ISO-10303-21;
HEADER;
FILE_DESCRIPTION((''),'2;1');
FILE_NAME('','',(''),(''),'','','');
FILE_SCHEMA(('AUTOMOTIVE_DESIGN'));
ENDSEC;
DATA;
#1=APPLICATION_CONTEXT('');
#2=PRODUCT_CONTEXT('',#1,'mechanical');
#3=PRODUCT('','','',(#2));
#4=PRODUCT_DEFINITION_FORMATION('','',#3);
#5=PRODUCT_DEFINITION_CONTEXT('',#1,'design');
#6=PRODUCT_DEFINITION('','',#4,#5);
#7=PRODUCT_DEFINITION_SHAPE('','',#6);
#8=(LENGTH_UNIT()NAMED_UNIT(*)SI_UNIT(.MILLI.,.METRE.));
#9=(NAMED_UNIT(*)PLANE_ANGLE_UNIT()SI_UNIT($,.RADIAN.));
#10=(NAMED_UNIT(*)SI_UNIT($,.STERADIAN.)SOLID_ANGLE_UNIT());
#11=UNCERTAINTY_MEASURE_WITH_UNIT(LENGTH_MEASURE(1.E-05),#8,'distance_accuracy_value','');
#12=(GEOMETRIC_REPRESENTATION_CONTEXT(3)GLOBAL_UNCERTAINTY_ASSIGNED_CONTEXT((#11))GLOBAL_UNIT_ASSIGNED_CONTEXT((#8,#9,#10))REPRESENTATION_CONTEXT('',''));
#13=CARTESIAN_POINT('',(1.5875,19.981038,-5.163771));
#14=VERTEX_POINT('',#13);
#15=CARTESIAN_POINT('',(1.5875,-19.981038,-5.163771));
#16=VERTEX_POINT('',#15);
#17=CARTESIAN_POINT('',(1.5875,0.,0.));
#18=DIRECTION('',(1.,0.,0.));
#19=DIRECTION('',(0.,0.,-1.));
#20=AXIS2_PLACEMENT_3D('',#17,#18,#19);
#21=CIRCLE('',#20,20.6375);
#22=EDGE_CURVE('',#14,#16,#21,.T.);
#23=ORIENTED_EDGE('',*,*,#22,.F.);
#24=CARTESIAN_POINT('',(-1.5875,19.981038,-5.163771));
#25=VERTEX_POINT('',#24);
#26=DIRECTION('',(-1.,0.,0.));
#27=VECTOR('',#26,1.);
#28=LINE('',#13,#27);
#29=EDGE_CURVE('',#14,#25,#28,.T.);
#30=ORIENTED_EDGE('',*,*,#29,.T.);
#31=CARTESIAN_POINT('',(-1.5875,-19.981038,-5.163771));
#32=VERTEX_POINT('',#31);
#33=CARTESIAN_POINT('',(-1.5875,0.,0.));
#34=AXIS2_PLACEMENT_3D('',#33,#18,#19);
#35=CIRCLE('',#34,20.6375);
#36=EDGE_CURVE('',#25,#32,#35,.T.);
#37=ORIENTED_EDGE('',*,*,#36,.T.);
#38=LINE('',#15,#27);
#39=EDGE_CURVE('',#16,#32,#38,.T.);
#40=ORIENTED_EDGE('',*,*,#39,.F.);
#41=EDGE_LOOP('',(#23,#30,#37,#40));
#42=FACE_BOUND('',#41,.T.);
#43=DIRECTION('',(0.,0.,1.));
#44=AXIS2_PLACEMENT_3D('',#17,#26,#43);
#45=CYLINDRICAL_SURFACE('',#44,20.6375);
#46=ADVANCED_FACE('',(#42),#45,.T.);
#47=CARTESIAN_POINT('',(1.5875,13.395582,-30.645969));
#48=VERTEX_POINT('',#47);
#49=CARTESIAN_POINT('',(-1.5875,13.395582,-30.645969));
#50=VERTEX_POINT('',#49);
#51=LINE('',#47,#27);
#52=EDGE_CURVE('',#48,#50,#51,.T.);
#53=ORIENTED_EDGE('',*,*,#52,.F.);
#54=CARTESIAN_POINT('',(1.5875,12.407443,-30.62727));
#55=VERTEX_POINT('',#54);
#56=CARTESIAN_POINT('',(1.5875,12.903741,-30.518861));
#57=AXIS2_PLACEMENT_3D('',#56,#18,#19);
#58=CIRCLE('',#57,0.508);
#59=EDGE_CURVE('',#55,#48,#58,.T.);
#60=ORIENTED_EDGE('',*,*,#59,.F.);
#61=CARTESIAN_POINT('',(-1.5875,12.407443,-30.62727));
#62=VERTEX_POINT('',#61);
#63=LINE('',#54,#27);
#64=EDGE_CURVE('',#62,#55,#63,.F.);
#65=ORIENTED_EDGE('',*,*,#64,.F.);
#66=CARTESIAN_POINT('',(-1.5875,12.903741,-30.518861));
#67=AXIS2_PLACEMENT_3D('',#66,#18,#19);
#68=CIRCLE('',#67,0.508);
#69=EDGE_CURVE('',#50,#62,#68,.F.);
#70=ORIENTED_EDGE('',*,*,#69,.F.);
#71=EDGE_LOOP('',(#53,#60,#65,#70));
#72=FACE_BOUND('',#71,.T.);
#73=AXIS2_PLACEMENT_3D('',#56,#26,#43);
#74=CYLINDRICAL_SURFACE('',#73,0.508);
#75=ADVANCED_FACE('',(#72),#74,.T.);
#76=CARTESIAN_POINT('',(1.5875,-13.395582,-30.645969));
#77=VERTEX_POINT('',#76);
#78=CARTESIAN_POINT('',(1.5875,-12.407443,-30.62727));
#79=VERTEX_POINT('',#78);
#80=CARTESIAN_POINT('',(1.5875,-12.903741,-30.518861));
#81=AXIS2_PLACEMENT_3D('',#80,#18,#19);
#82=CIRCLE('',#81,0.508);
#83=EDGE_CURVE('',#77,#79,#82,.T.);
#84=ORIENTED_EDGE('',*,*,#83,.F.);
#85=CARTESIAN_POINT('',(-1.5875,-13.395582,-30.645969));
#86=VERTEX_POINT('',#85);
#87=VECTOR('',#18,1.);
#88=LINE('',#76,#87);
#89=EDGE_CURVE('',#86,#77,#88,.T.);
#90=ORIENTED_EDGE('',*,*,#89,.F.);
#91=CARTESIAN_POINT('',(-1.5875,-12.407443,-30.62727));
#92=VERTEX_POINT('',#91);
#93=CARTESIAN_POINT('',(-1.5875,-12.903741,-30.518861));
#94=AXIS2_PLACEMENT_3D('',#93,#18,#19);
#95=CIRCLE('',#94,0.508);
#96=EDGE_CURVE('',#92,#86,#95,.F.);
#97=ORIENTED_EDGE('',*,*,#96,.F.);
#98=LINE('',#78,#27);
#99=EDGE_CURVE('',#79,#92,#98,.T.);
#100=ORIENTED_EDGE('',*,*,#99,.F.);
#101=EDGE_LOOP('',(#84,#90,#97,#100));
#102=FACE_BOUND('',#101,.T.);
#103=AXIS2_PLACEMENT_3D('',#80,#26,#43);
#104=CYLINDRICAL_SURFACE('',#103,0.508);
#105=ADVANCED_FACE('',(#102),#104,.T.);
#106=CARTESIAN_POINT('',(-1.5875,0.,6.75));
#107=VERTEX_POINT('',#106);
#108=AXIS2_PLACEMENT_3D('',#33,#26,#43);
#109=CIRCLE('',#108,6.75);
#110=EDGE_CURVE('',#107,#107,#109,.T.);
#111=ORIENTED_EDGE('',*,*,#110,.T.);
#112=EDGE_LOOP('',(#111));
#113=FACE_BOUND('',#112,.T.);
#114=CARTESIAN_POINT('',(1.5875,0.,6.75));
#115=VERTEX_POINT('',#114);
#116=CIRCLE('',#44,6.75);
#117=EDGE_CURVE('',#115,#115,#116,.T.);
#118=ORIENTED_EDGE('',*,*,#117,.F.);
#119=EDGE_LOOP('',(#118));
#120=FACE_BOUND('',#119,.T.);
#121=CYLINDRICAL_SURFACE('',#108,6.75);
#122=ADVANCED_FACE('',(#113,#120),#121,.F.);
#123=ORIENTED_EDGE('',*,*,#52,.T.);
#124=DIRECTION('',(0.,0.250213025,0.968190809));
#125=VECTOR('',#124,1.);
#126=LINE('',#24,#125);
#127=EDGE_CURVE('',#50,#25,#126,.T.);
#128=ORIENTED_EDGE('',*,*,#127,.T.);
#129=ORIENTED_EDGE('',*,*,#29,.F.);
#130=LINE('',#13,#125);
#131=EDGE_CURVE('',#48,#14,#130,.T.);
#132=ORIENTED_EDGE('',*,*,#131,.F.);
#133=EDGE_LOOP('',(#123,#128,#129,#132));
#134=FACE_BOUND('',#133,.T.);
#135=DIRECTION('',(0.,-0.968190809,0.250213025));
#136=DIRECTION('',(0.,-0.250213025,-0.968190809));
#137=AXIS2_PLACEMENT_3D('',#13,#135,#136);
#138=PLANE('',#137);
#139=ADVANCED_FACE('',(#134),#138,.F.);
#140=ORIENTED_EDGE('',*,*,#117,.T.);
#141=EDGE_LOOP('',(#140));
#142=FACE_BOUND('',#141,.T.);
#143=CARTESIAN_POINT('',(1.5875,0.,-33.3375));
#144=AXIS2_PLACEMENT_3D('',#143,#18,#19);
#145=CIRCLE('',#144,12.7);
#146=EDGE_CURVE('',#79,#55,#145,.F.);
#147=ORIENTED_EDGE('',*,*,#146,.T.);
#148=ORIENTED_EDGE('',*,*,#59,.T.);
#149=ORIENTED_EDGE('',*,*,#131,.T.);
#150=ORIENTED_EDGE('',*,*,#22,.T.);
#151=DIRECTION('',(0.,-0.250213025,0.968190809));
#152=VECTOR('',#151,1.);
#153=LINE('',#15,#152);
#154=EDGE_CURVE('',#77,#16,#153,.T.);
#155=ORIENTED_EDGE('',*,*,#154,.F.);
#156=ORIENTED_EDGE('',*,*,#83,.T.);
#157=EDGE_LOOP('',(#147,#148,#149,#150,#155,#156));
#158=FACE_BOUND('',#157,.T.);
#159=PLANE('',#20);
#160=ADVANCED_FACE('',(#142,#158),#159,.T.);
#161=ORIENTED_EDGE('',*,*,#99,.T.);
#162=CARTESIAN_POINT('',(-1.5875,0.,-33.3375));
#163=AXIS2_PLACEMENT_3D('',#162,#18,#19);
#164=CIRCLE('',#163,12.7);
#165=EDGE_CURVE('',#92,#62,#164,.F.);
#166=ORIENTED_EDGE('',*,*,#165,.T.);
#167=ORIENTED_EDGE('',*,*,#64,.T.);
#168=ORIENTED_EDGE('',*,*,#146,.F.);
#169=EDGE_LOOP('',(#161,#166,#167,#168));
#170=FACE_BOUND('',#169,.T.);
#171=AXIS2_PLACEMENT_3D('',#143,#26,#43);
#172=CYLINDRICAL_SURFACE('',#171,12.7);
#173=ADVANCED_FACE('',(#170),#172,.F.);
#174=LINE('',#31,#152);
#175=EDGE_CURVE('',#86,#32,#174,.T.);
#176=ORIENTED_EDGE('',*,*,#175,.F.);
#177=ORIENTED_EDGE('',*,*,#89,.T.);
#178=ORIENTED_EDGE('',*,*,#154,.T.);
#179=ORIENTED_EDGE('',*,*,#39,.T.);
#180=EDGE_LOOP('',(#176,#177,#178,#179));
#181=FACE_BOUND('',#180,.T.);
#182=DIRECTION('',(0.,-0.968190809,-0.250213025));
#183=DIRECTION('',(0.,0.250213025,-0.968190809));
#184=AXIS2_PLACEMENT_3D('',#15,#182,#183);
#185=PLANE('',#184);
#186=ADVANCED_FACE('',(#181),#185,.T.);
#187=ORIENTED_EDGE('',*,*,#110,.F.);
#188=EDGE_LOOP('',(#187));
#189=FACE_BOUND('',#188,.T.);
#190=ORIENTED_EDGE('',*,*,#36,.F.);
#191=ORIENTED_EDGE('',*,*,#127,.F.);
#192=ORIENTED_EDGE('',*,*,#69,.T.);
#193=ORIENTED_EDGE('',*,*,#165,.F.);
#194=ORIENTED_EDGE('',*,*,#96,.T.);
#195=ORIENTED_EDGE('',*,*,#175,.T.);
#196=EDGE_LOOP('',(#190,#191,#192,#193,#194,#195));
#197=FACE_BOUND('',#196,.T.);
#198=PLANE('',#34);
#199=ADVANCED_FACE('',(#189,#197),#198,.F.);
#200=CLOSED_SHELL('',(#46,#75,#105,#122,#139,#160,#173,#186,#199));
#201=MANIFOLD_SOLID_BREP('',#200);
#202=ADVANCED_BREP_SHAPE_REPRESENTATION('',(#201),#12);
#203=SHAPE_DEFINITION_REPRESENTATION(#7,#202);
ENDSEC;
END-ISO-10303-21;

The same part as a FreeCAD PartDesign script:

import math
import FreeCAD as App
import Part
import Sketcher
from FreeCAD import Vector
Q = App.Units.Quantity


def edges_at(feature, points):
    """Names of the edges that pass closest to the given points."""
    edges = feature.Shape.Edges
    near = lambda p: min(range(len(edges)), key=lambda i: edges[i].distToShape(Part.Vertex(*p))[0])
    return sorted({f"Edge{near(p) + 1}" for p in points})

doc = App.newDocument("Part")
params = doc.addObject("Spreadsheet::Sheet", "Params")
for row, (alias, value) in enumerate([
    ("sketch1_radius", "0.5 in"),
    ("sketch1_radius2", "0.8125 in"),
    ("pad1_length", "0.125 in"),
    ("fillet_radius", "0.02 in"),
    ("fillet2_radius", "0.02 in"),
    ("hole_diameter", "13.5 mm"),
], start=1):
    params.set(f"A{row}", alias)
    params.set(f"B{row}", "=" + value)
    params.setAlias(f"B{row}", alias)

body = doc.addObject("PartDesign::Body", "Body")

# Sketch on YZ plane
sketch1 = doc.addObject("Sketcher::SketchObject", "Sketch")
body.addObject(sketch1)
sketch1.AttachmentSupport = (doc.YZ_Plane, [""])
sketch1.MapMode = "FlatFace"
sketch1.addGeometry([
    Part.LineSegment(Vector(-19.981038, -5.163771, 0), Vector(-12.7, -33.3375, 0)),
    Part.ArcOfCircle(Part.Circle(Vector(0, -33.3375, 0), Vector(0, 0, 1), 12.7), math.radians(0), math.radians(180)),
    Part.LineSegment(Vector(12.7, -33.3375, 0), Vector(19.981038, -5.163771, 0)),
    Part.ArcOfCircle(Part.Circle(Vector(0, 0, 0), Vector(0, 0, 1), 20.6375), math.radians(-14.490118), math.radians(194.490118)),
], False)
sketch1.addConstraint([
    Sketcher.Constraint("Coincident", 0, 2, 1, 2),
    Sketcher.Constraint("Coincident", 1, 1, 2, 1),
    Sketcher.Constraint("Tangent", 2, 2, 3, 1),
    Sketcher.Constraint("Tangent", 3, 2, 0, 1),
    Sketcher.Constraint("Coincident", 3, 3, -1, 1),
    Sketcher.Constraint("Symmetric", 0, 2, 1, 1, -2),
    Sketcher.Constraint("Horizontal", 1, 3, 0, 2),
    Sketcher.Constraint("Radius", 1, Q("0.5 in")),
    Sketcher.Constraint("Radius", 3, Q("0.8125 in")),
    Sketcher.Constraint("DistanceY", 1, 3, -1, 1, Q("1.3125 in")),
])
sketch1.setExpression("Constraints[7]", "Params.sketch1_radius")
sketch1.setExpression("Constraints[8]", "Params.sketch1_radius2")
pad1 = doc.addObject("PartDesign::Pad", "Pad")
body.addObject(pad1)
pad1.Profile = sketch1
pad1.setExpression("Length", "Params.pad1_length")
pad1.Midplane = True
doc.recompute()

fillet = doc.addObject("PartDesign::Fillet", "Fillet")
body.addObject(fillet)
fillet.Base = (pad1, edges_at(pad1, [(0, -12.7, -33.337)]))
fillet.setExpression("Radius", "Params.fillet_radius")
doc.recompute()

fillet2 = doc.addObject("PartDesign::Fillet", "Fillet001")
body.addObject(fillet2)
fillet2.Base = (fillet, edges_at(fillet, [(0, 12.7, -33.337)]))
fillet2.setExpression("Radius", "Params.fillet2_radius")

# Sketch on YZ plane
sketch2 = doc.addObject("Sketcher::SketchObject", "Sketch001")
body.addObject(sketch2)
sketch2.AttachmentSupport = (doc.YZ_Plane, [""])
sketch2.MapMode = "FlatFace"
sketch2.AttachmentOffset = App.Placement(Vector(0, 0, -0.0625 * 25.4), App.Rotation())
sketch2.addGeometry(Part.Circle(Vector(0, 0, 0), Vector(0, 0, 1), 6.75), False)
sketch2.addConstraint([
    Sketcher.Constraint("Coincident", 0, 3, -1, 1),
    Sketcher.Constraint("Diameter", 0, 13.5),
])
doc.recompute()
hole = doc.addObject("PartDesign::Hole", "Hole")
body.addObject(hole)
hole.Profile = sketch2
hole.ThreadType = "None"
hole.setExpression("Diameter", "Params.hole_diameter")
hole.DepthType = "ThroughAll"
hole.Reversed = True

doc.recompute()
